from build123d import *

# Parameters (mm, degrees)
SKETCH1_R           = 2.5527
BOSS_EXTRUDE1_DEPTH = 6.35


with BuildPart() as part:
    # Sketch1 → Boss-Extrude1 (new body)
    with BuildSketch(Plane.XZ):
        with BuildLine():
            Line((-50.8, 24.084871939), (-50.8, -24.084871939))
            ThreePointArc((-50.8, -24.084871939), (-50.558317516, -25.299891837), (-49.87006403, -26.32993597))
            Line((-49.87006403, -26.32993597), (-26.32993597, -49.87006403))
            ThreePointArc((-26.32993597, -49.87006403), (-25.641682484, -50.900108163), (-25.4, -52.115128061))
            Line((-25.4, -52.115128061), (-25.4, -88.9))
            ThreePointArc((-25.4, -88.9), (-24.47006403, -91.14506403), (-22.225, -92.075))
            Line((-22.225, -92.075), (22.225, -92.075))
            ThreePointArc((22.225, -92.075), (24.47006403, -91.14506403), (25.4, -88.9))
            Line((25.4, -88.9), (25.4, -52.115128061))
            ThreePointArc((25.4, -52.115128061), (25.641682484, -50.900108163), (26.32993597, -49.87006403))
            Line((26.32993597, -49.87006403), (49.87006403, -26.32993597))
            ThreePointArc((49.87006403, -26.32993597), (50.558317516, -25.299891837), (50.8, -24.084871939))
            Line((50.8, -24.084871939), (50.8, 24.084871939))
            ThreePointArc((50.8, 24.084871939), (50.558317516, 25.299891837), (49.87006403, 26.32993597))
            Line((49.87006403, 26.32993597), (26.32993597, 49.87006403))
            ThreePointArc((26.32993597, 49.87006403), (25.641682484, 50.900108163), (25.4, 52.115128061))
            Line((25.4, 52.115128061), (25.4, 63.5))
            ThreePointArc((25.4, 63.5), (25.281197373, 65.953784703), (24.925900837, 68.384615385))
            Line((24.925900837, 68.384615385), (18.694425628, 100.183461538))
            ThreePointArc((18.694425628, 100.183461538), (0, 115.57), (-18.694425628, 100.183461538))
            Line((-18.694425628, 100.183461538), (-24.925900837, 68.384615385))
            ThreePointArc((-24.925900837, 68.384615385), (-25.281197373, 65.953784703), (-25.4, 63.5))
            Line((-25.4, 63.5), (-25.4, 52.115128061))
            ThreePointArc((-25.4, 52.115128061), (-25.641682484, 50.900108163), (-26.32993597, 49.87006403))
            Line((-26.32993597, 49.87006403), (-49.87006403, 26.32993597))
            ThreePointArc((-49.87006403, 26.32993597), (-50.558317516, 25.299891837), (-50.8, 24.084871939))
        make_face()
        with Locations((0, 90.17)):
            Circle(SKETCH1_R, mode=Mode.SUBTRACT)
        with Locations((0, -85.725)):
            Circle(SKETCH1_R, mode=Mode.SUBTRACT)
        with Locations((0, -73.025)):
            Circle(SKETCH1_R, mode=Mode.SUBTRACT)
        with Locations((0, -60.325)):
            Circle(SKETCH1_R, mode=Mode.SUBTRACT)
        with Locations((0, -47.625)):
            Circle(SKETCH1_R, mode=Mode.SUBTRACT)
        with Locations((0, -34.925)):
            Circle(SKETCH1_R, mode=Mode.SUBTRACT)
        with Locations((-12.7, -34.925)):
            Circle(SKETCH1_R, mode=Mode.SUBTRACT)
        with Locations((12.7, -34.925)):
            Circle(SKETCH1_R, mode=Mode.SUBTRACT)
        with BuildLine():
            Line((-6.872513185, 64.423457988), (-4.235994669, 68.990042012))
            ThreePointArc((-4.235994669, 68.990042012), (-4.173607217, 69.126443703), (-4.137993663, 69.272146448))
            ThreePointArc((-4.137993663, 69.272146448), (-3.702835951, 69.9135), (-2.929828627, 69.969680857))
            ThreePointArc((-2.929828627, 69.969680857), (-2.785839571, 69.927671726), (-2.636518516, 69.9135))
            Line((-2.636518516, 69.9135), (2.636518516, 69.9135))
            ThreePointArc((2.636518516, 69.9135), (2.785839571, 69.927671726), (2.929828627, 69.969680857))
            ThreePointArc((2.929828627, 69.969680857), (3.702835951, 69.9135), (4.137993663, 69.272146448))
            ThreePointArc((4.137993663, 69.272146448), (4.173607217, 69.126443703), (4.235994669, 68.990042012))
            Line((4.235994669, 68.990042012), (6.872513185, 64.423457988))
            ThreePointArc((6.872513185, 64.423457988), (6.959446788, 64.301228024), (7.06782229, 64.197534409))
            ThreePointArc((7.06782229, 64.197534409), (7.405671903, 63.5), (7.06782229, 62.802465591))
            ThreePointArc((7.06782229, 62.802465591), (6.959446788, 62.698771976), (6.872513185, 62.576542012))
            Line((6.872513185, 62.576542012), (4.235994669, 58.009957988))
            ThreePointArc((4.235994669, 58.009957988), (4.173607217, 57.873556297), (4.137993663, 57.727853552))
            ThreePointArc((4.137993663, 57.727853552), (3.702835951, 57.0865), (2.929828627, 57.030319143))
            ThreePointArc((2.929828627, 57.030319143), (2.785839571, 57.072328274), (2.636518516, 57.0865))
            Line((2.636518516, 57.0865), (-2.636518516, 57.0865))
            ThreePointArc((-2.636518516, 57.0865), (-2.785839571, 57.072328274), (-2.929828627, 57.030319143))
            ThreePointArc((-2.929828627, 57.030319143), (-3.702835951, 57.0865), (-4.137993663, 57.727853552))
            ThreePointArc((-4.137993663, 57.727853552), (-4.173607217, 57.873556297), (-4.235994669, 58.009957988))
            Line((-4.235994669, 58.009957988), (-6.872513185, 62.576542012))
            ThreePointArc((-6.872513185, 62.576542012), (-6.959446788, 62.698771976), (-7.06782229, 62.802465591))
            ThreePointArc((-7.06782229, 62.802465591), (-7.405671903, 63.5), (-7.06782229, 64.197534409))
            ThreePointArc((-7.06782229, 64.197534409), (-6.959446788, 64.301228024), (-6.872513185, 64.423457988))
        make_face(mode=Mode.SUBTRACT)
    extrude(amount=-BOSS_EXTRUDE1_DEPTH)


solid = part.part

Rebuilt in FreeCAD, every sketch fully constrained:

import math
import FreeCAD as App
import Part
import Sketcher
from FreeCAD import Vector
Q = App.Units.Quantity

doc = App.newDocument("Part")
body = doc.addObject("PartDesign::Body", "Body")

# Sketch on XZ plane
sketch1 = body.newObject("Sketcher::SketchObject", "Sketch")
sketch1.AttachmentSupport = (doc.getObject("XZ_Plane"), [""])
sketch1.MapMode = "FlatFace"
sketch1.addGeometry([
    Part.LineSegment(Vector(-50.8, 24.08, 0), Vector(-50.8, -24.08, 0)),  # 0
    Part.ArcOfCircle(Part.Circle(Vector(-47.63, -24.08, 0), Vector(0, 0, 1), 3.17), math.radians(180), math.radians(225)),  # 1
    Part.LineSegment(Vector(-49.87, -26.33, 0), Vector(-26.33, -49.87, 0)),  # 2
    Part.ArcOfCircle(Part.Circle(Vector(-28.57, -52.12, 0), Vector(0, 0, 1), 3.17), math.radians(0), math.radians(45)),  # 3
    Part.LineSegment(Vector(-25.4, -52.12, 0), Vector(-25.4, -88.9, 0)),  # 4
    Part.ArcOfCircle(Part.Circle(Vector(-22.22, -88.9, 0), Vector(0, 0, 1), 3.18), math.radians(-180), math.radians(-90)),  # 5
    Part.LineSegment(Vector(-22.23, -92.08, 0), Vector(22.23, -92.08, 0)),  # 6
    Part.ArcOfCircle(Part.Circle(Vector(22.22, -88.9, 0), Vector(0, 0, 1), 3.18), math.radians(-90), math.radians(0)),  # 7
    Part.LineSegment(Vector(25.4, -88.9, 0), Vector(25.4, -52.12, 0)),  # 8
    Part.ArcOfCircle(Part.Circle(Vector(28.57, -52.12, 0), Vector(0, 0, 1), 3.17), math.radians(135), math.radians(180)),  # 9
    Part.LineSegment(Vector(26.33, -49.87, 0), Vector(49.87, -26.33, 0)),  # 10
    Part.ArcOfCircle(Part.Circle(Vector(47.63, -24.08, 0), Vector(0, 0, 1), 3.17), math.radians(-45), math.radians(0)),  # 11
    Part.LineSegment(Vector(50.8, -24.08, 0), Vector(50.8, 24.08, 0)),  # 12
    Part.ArcOfCircle(Part.Circle(Vector(47.63, 24.08, 0), Vector(0, 0, 1), 3.17), math.radians(0), math.radians(45)),  # 13
    Part.LineSegment(Vector(49.87, 26.33, 0), Vector(26.33, 49.87, 0)),  # 14
    Part.ArcOfCircle(Part.Circle(Vector(28.57, 52.12, 0), Vector(0, 0, 1), 3.17), math.radians(180), math.radians(225)),  # 15
    Part.LineSegment(Vector(25.4, 52.12, 0), Vector(25.4, 63.5, 0)),  # 16
    Part.ArcOfCircle(Part.Circle(Vector(0, 63.5, 0), Vector(0, 0, 1), 25.4), math.radians(0), math.radians(11.09)),  # 17
    Part.LineSegment(Vector(24.93, 68.38, 0), Vector(18.69, 100.18, 0)),  # 18
    Part.ArcOfCircle(Part.Circle(Vector(0, 96.52, 0), Vector(0, 0, 1), 19.05), math.radians(11), math.radians(169)),  # 19
    Part.LineSegment(Vector(-18.69, 100.18, 0), Vector(-24.93, 68.38, 0)),  # 20
    Part.ArcOfCircle(Part.Circle(Vector(0, 63.5, 0), Vector(0, 0, 1), 25.4), math.radians(168.91), math.radians(180)),  # 21
    Part.LineSegment(Vector(-25.4, 63.5, 0), Vector(-25.4, 52.12, 0)),  # 22
    Part.ArcOfCircle(Part.Circle(Vector(-28.57, 52.12, 0), Vector(0, 0, 1), 3.17), math.radians(-45), math.radians(0)),  # 23
    Part.LineSegment(Vector(-26.33, 49.87, 0), Vector(-49.87, 26.33, 0)),  # 24
    Part.ArcOfCircle(Part.Circle(Vector(-47.63, 24.08, 0), Vector(0, 0, 1), 3.17), math.radians(135), math.radians(180)),  # 25
    Part.Circle(Vector(-12.7, -34.92, 0), Vector(0, 0, 1), 2.55),  # 26
    Part.Circle(Vector(0, -85.72, 0), Vector(0, 0, 1), 2.55),  # 27
    Part.Circle(Vector(0, -73.03, 0), Vector(0, 0, 1), 2.55),  # 28
    Part.Circle(Vector(0, -60.33, 0), Vector(0, 0, 1), 2.55),  # 29
    Part.Circle(Vector(0, -47.62, 0), Vector(0, 0, 1), 2.55),  # 30
    Part.Circle(Vector(0, -34.92, 0), Vector(0, 0, 1), 2.55),  # 31
    Part.Circle(Vector(12.7, -34.92, 0), Vector(0, 0, 1), 2.55),  # 32
    Part.ArcOfCircle(Part.Circle(Vector(-7.56, 64.82, 0), Vector(0, 0, 1), 0.79), math.radians(-52), math.radians(-30)),  # 33
    Part.LineSegment(Vector(-6.87, 64.42, 0), Vector(-4.24, 68.99, 0)),  # 34
    Part.ArcOfCircle(Part.Circle(Vector(-4.92, 69.39, 0), Vector(0, 0, 1), 0.79), math.radians(-30), math.radians(-8)),  # 35
    Part.ArcOfCircle(Part.Circle(Vector(-3.26, 69.14, 0), Vector(0, 0, 1), 0.89), math.radians(68), math.radians(172)),  # 36
    Part.ArcOfCircle(Part.Circle(Vector(-2.64, 70.71, 0), Vector(0, 0, 1), 0.79), math.radians(-112), math.radians(-90)),  # 37
    Part.LineSegment(Vector(-2.64, 69.91, 0), Vector(2.64, 69.91, 0)),  # 38
    Part.ArcOfCircle(Part.Circle(Vector(2.64, 70.71, 0), Vector(0, 0, 1), 0.79), math.radians(-90), math.radians(-68)),  # 39
    Part.ArcOfCircle(Part.Circle(Vector(3.26, 69.14, 0), Vector(0, 0, 1), 0.89), math.radians(8), math.radians(112)),  # 40
    Part.ArcOfCircle(Part.Circle(Vector(4.92, 69.39, 0), Vector(0, 0, 1), 0.79), math.radians(-172), math.radians(-150)),  # 41
    Part.LineSegment(Vector(4.24, 68.99, 0), Vector(6.87, 64.42, 0)),  # 42
    Part.ArcOfCircle(Part.Circle(Vector(7.56, 64.82, 0), Vector(0, 0, 1), 0.79), math.radians(-150), math.radians(-128)),  # 43
    Part.ArcOfCircle(Part.Circle(Vector(6.52, 63.5, 0), Vector(0, 0, 1), 0.89), math.radians(-52), math.radians(52)),  # 44
    Part.ArcOfCircle(Part.Circle(Vector(7.56, 62.18, 0), Vector(0, 0, 1), 0.79), math.radians(128), math.radians(150)),  # 45
    Part.LineSegment(Vector(6.87, 62.58, 0), Vector(4.24, 58.01, 0)),  # 46
    Part.ArcOfCircle(Part.Circle(Vector(4.92, 57.61, 0), Vector(0, 0, 1), 0.79), math.radians(150), math.radians(172)),  # 47
    Part.ArcOfCircle(Part.Circle(Vector(3.26, 57.86, 0), Vector(0, 0, 1), 0.89), math.radians(-112), math.radians(-8)),  # 48
    Part.ArcOfCircle(Part.Circle(Vector(2.64, 56.29, 0), Vector(0, 0, 1), 0.79), math.radians(68), math.radians(90)),  # 49
    Part.LineSegment(Vector(2.64, 57.09, 0), Vector(-2.64, 57.09, 0)),  # 50
    Part.ArcOfCircle(Part.Circle(Vector(-2.64, 56.29, 0), Vector(0, 0, 1), 0.79), math.radians(90), math.radians(112)),  # 51
    Part.ArcOfCircle(Part.Circle(Vector(-3.26, 57.86, 0), Vector(0, 0, 1), 0.89), math.radians(-172), math.radians(-68)),  # 52
    Part.ArcOfCircle(Part.Circle(Vector(-4.92, 57.61, 0), Vector(0, 0, 1), 0.79), math.radians(8), math.radians(30)),  # 53
    Part.LineSegment(Vector(-4.24, 58.01, 0), Vector(-6.87, 62.58, 0)),  # 54
    Part.ArcOfCircle(Part.Circle(Vector(-7.56, 62.18, 0), Vector(0, 0, 1), 0.79), math.radians(30), math.radians(52)),  # 55
    Part.ArcOfCircle(Part.Circle(Vector(-6.52, 63.5, 0), Vector(0, 0, 1), 0.89), math.radians(128), math.radians(232)),  # 56
    Part.Circle(Vector(0, 90.17, 0), Vector(0, 0, 1), 2.55),  # 57
], False)
sketch1.addConstraint([
    Sketcher.Constraint("Tangent", 0, 2, 1, 1),
    Sketcher.Constraint("Tangent", 1, 2, 2, 1),
    Sketcher.Constraint("Tangent", 2, 2, 3, 2),
    Sketcher.Constraint("Tangent", 3, 1, 4, 1),
    Sketcher.Constraint("Tangent", 4, 2, 5, 1),
    Sketcher.Constraint("Tangent", 5, 2, 6, 1),
    Sketcher.Constraint("Tangent", 6, 2, 7, 1),
    Sketcher.Constraint("Tangent", 7, 2, 8, 1),
    Sketcher.Constraint("Tangent", 8, 2, 9, 2),
    Sketcher.Constraint("Tangent", 9, 1, 10, 1),
    Sketcher.Constraint("Tangent", 10, 2, 11, 1),
    Sketcher.Constraint("Tangent", 11, 2, 12, 1),
    Sketcher.Constraint("Tangent", 12, 2, 13, 1),
    Sketcher.Constraint("Tangent", 13, 2, 14, 1),
    Sketcher.Constraint("Tangent", 14, 2, 15, 2),
    Sketcher.Constraint("Tangent", 15, 1, 16, 1),
    Sketcher.Constraint("Tangent", 16, 2, 17, 1),
    Sketcher.Constraint("Tangent", 17, 2, 18, 1),
    Sketcher.Constraint("Tangent", 18, 2, 19, 1),
    Sketcher.Constraint("Tangent", 19, 2, 20, 1),
    Sketcher.Constraint("Tangent", 20, 2, 21, 1),
    Sketcher.Constraint("Tangent", 21, 2, 22, 1),
    Sketcher.Constraint("Tangent", 22, 2, 23, 2),
    Sketcher.Constraint("Tangent", 23, 1, 24, 1),
    Sketcher.Constraint("Tangent", 24, 2, 25, 1),
    Sketcher.Constraint("Tangent", 25, 2, 0, 1),
    Sketcher.Constraint("Tangent", 33, 2, 34, 1),
    Sketcher.Constraint("Tangent", 34, 2, 35, 1),
    Sketcher.Constraint("Tangent", 35, 2, 36, 2),
    Sketcher.Constraint("Tangent", 36, 1, 37, 1),
    Sketcher.Constraint("Tangent", 37, 2, 38, 1),
    Sketcher.Constraint("Tangent", 38, 2, 39, 1),
    Sketcher.Constraint("Tangent", 39, 2, 40, 2),
    Sketcher.Constraint("Tangent", 40, 1, 41, 1),
    Sketcher.Constraint("Tangent", 41, 2, 42, 1),
    Sketcher.Constraint("Tangent", 42, 2, 43, 1),
    Sketcher.Constraint("Tangent", 43, 2, 44, 2),
    Sketcher.Constraint("Tangent", 44, 1, 45, 1),
    Sketcher.Constraint("Tangent", 45, 2, 46, 1),
    Sketcher.Constraint("Tangent", 46, 2, 47, 1),
    Sketcher.Constraint("Tangent", 47, 2, 48, 2),
    Sketcher.Constraint("Tangent", 48, 1, 49, 1),
    Sketcher.Constraint("Tangent", 49, 2, 50, 1),
    Sketcher.Constraint("Tangent", 50, 2, 51, 1),
    Sketcher.Constraint("Tangent", 51, 2, 52, 2),
    Sketcher.Constraint("Tangent", 52, 1, 53, 1),
    Sketcher.Constraint("Tangent", 53, 2, 54, 1),
    Sketcher.Constraint("Tangent", 54, 2, 55, 1),
    Sketcher.Constraint("Tangent", 55, 2, 56, 2),
    Sketcher.Constraint("Tangent", 56, 1, 33, 1),
    Sketcher.Constraint("Vertical", 0),
    Sketcher.Constraint("Vertical", 4),
    Sketcher.Constraint("Horizontal", 6),
    Sketcher.Constraint("Vertical", 8),
    Sketcher.Constraint("Vertical", 12),
    Sketcher.Constraint("Vertical", 16),
    Sketcher.Constraint("Vertical", 22),
    Sketcher.Constraint("Horizontal", 38),
    Sketcher.Constraint("Horizontal", 50),
    Sketcher.Constraint("Coincident", 21, 3, 17, 3),
    Sketcher.Constraint("Equal", 1, 3),
    Sketcher.Constraint("Equal", 3, 5),
    Sketcher.Constraint("Equal", 5, 7),
    Sketcher.Constraint("Equal", 7, 9),
    Sketcher.Constraint("Equal", 9, 11),
    Sketcher.Constraint("Equal", 11, 13),
    Sketcher.Constraint("Equal", 13, 15),
    Sketcher.Constraint("Equal", 17, 21),
    Sketcher.Constraint("Equal", 15, 23),
    Sketcher.Constraint("Equal", 23, 25),
    Sketcher.Constraint("Equal", 26, 27),
    Sketcher.Constraint("Equal", 27, 28),
    Sketcher.Constraint("Equal", 28, 29),
    Sketcher.Constraint("Equal", 29, 30),
    Sketcher.Constraint("Equal", 30, 31),
    Sketcher.Constraint("Equal", 31, 32),
    Sketcher.Constraint("Equal", 33, 35),
    Sketcher.Constraint("Equal", 35, 37),
    Sketcher.Constraint("Equal", 37, 39),
    Sketcher.Constraint("Equal", 36, 40),
    Sketcher.Constraint("Equal", 39, 41),
    Sketcher.Constraint("Equal", 41, 43),
    Sketcher.Constraint("Equal", 40, 44),
    Sketcher.Constraint("Equal", 43, 45),
    Sketcher.Constraint("Equal", 45, 47),
    Sketcher.Constraint("Equal", 44, 48),
    Sketcher.Constraint("Equal", 47, 49),
    Sketcher.Constraint("Equal", 49, 51),
    Sketcher.Constraint("Equal", 48, 52),
    Sketcher.Constraint("Equal", 51, 53),
    Sketcher.Constraint("Equal", 53, 55),
    Sketcher.Constraint("Equal", 52, 56),
    Sketcher.Constraint("Equal", 32, 57),
    Sketcher.Constraint("Symmetric", 1, 3, 13, 3, -1, 1),
    Sketcher.Constraint("Symmetric", 3, 3, 15, 3, -1, 1),
    Sketcher.Constraint("Symmetric", 9, 3, 23, 3, -1, 1),
    Sketcher.Constraint("Symmetric", 3, 3, 9, 3, -2),
    Sketcher.Constraint("Symmetric", 26, 3, 32, 3, -2),
    Sketcher.Constraint("Symmetric", 36, 3, 40, 3, -2),
    Sketcher.Constraint("Symmetric", 33, 3, 43, 3, -2),
    Sketcher.Constraint("Symmetric", 48, 3, 52, 3, -2),
    Sketcher.Constraint("Symmetric", 45, 3, 55, 3, -2),
    Sketcher.Constraint("PointOnObject", 19, 3, -2),
    Sketcher.Constraint("PointOnObject", 27, 3, -2),
    Sketcher.Constraint("PointOnObject", 28, 3, -2),
    Sketcher.Constraint("PointOnObject", 29, 3, -2),
    Sketcher.Constraint("PointOnObject", 30, 3, -2),
    Sketcher.Constraint("PointOnObject", 31, 3, -2),
    Sketcher.Constraint("PointOnObject", 57, 3, -2),
    Sketcher.Constraint("Perpendicular", 2, 10),
    Sketcher.Constraint("Perpendicular", 14, 24),
    Sketcher.Constraint("Parallel", 34, 46),
    Sketcher.Constraint("Parallel", 42, 54),
    Sketcher.Constraint("Horizontal", 1, 3, 11, 3),
    Sketcher.Constraint("Horizontal", 26, 3, 31, 3),
    Sketcher.Constraint("Horizontal", 35, 3, 41, 3),
    Sketcher.Constraint("Horizontal", 21, 3, 44, 3),
    Sketcher.Constraint("Vertical", 43, 3, 45, 3),
    Sketcher.Constraint("Vertical", 41, 3, 47, 3),
    Sketcher.Constraint("Vertical", 40, 3, 48, 3),
    Sketcher.Constraint("Vertical", 39, 3, 49, 3),
    Sketcher.Constraint("Radius", 17, Q("1 in")),
    Sketcher.Constraint("Radius", 19, Q("0.75 in")),
    Sketcher.Constraint("Diameter", 26, Q("0.201 in")),
    Sketcher.Constraint("DistanceX", 0, 2, -1, 1, Q("2 in")),
    Sketcher.Constraint("Angle", 34, Q("60 deg")),
    Sketcher.Constraint("Radius", 1, Q("0.125 in")),
    Sketcher.Constraint("Radius", 33, Q("0.03125 in")),
    Sketcher.Constraint("Radius", 36, Q("0.035 in")),
    Sketcher.Constraint("DistanceY", 5, 3, -1, 1, Q("3.5 in")),
    Sketcher.Constraint("DistanceY", -1, 1, 17, 3, Q("2.5 in")),
    Sketcher.Constraint("DistanceY", -1, 1, 19, 3, Q("3.8 in")),
    Sketcher.Constraint("DistanceX", 26, 3, -1, 1, Q("0.5 in")),
    Sketcher.Constraint("DistanceY", -1, 1, 57, 3, Q("3.55 in")),
    Sketcher.Constraint("DistanceX", 38, 1, 38, 2, Q("0.2075999 in")),
    Sketcher.Constraint("DistanceY", 26, 3, -1, 1, Q("1.375 in")),
    Sketcher.Constraint("DistanceY", 27, 3, -1, 1, Q("3.375 in")),
    Sketcher.Constraint("DistanceY", 28, 3, -1, 1, Q("2.875 in")),
    Sketcher.Constraint("DistanceY", 29, 3, -1, 1, Q("2.375 in")),
    Sketcher.Constraint("DistanceY", 30, 3, -1, 1, Q("1.875 in")),
    Sketcher.Constraint("Distance", 34, Q("0.2075999 in")),
    Sketcher.Constraint("DistanceY", -1, 1, 37, 2, Q("2.7525 in")),
    Sketcher.Constraint("DistanceY", 4, 2, 4, 1, 36.784872),
    Sketcher.Constraint("DistanceX", 33, 3, -1, 1, 7.559921),
    Sketcher.Constraint("DistanceX", -1, 1, 44, 3, 6.516672),
])
pad1 = body.newObject("PartDesign::Pad", "Pad")
pad1.Profile = sketch1
pad1.Length = Q("0.25 in")
pad1.Reversed = True

doc.recompute()
